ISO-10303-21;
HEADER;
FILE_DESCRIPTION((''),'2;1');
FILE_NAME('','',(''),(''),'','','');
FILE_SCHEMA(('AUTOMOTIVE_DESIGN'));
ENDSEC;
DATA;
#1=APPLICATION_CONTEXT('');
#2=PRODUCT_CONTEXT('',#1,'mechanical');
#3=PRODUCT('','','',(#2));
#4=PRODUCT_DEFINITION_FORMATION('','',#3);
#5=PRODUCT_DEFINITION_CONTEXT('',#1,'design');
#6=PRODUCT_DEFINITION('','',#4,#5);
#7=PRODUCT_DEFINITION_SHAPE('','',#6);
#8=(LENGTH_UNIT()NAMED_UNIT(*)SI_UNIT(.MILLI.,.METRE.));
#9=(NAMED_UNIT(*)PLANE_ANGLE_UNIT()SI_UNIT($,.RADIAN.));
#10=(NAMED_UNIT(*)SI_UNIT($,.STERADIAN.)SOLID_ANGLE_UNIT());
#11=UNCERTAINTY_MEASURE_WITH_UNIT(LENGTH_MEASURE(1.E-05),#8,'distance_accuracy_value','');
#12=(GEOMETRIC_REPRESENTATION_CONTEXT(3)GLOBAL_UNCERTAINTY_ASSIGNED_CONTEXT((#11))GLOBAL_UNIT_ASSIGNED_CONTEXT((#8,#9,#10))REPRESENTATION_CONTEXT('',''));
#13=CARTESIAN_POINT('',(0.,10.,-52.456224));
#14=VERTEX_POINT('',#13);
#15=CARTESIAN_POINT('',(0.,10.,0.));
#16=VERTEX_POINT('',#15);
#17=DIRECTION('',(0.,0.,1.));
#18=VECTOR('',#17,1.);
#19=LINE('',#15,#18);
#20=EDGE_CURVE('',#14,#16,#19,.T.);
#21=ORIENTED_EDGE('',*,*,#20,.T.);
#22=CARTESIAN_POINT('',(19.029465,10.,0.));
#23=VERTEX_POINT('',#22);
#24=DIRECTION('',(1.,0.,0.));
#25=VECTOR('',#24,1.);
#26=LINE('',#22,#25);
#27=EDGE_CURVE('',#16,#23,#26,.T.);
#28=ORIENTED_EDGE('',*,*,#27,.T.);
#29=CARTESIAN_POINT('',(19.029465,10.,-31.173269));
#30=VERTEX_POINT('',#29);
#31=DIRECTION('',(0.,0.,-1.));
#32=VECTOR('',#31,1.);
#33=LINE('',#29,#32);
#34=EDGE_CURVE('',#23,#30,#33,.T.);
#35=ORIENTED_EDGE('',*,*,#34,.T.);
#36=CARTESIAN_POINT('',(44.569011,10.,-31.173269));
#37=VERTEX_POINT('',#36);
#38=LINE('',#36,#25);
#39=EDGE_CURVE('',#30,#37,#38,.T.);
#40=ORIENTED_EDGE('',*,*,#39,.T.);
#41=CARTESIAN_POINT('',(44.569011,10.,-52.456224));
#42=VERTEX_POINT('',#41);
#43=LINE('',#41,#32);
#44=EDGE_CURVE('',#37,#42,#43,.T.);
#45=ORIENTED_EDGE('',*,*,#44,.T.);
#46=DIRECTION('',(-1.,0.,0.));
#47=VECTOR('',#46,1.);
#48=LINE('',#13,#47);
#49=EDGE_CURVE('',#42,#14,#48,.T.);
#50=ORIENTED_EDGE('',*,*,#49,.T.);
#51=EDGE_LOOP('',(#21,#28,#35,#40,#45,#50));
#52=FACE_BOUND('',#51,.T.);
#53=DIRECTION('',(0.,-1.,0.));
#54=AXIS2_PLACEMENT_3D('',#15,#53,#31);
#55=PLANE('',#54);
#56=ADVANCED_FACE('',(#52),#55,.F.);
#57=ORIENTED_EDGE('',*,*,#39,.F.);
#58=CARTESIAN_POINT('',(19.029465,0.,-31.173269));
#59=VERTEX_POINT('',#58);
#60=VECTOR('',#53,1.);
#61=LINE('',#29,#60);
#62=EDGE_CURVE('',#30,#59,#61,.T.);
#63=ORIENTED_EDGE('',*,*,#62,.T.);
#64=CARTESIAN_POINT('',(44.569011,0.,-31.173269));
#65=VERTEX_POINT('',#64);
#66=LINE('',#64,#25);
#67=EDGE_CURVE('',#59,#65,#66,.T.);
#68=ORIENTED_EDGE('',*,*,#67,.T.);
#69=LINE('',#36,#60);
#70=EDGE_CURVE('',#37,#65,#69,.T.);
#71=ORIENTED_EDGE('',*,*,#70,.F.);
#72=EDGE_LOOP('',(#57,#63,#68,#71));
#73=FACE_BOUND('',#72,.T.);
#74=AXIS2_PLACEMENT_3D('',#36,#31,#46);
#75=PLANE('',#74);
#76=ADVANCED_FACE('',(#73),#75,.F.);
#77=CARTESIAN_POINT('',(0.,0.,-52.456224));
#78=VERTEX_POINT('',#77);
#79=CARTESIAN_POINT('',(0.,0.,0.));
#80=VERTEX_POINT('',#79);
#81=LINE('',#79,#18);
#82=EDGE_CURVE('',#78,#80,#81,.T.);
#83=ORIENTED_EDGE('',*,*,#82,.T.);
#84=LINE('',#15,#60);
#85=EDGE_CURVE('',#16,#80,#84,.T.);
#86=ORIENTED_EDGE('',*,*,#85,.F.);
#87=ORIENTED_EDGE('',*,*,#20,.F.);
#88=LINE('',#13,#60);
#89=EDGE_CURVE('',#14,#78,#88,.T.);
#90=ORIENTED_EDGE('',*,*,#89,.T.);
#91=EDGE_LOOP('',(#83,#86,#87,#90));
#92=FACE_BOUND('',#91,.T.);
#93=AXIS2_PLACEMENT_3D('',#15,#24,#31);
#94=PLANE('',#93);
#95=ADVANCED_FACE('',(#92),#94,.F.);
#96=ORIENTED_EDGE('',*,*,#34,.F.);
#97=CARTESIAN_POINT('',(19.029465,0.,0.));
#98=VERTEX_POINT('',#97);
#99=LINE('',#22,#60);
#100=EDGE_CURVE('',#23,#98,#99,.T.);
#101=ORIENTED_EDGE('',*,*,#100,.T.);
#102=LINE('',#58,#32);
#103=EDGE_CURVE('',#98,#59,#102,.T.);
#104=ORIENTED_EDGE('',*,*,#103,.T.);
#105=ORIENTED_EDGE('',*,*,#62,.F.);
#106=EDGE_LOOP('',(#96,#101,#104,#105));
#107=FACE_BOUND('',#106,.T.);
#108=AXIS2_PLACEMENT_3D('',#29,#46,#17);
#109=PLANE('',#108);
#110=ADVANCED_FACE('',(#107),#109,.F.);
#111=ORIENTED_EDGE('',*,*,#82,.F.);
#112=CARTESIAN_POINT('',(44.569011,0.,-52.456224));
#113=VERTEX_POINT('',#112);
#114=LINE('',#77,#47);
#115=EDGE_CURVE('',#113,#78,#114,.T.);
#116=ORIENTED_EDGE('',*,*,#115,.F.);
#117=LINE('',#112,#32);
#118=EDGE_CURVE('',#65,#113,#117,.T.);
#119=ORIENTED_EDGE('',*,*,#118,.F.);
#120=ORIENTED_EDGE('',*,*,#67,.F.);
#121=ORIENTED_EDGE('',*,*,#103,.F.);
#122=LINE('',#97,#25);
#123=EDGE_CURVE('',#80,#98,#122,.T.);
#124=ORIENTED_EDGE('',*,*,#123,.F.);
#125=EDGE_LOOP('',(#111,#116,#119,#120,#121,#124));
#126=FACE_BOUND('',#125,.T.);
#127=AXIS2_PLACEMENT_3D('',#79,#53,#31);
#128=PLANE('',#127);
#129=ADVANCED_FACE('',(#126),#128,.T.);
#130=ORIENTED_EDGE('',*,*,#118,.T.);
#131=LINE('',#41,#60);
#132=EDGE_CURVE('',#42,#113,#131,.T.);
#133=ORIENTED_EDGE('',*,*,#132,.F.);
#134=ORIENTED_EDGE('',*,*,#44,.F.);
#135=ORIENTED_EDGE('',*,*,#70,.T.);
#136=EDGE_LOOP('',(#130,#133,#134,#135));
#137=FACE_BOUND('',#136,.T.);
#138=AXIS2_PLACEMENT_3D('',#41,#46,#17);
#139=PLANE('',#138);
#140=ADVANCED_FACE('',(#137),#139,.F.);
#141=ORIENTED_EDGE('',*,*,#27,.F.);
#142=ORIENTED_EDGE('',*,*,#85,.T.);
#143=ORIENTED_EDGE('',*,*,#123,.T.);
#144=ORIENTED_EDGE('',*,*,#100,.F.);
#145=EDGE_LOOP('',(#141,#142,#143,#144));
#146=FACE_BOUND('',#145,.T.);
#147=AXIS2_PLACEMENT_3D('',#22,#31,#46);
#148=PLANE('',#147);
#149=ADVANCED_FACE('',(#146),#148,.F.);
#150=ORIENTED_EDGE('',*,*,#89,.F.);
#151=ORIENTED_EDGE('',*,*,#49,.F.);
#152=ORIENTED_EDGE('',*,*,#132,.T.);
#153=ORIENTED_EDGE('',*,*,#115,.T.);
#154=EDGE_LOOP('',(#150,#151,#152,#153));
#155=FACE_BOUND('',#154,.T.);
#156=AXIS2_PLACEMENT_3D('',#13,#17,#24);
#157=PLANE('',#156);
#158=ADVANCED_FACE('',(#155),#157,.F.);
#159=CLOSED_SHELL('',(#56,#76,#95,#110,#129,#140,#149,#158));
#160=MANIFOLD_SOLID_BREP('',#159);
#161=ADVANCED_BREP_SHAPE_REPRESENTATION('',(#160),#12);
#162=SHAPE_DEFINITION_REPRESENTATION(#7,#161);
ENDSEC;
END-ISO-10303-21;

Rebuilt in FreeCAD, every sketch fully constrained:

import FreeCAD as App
import Part
import Sketcher

V = App.Vector
Q = App.Units.Quantity


def add_polygon(sketch, points):
    """Adds a closed chain of lines whose ends are joined by coincident constraints."""
    first, n = sketch.GeometryCount, len(points)
    for a, b in zip(points, points[1:] + points[:1]):
        sketch.addGeometry(Part.LineSegment(App.Vector(*a, 0), App.Vector(*b, 0)), False)
    for i in range(n):
        sketch.addConstraint(Sketcher.Constraint("Coincident", first + i, 2, first + (i + 1) % n, 1))

doc = App.newDocument("Part")
params = doc.addObject("Spreadsheet::Sheet", "Params")
for row, (alias, value) in enumerate([
    ("pad1_length", "10 mm"),
], start=1):
    params.set(f"A{row}", alias)
    params.set(f"B{row}", "=" + value)
    params.setAlias(f"B{row}", alias)

body = doc.addObject("PartDesign::Body", "Body")

sketch1 = body.newObject("Sketcher::SketchObject", "Sketch")
sketch1.AttachmentSupport = (doc.getObject("XZ_Plane"), [""])
sketch1.MapMode = "FlatFace"
add_polygon(sketch1, [(0, -52), (0, 0), (19, 0), (19, -31), (45, -31), (45, -52)])
sketch1.addConstraint(Sketcher.Constraint("Vertical", 0))
sketch1.addConstraint(Sketcher.Constraint("Horizontal", 1))
sketch1.addConstraint(Sketcher.Constraint("Vertical", 2))
sketch1.addConstraint(Sketcher.Constraint("Horizontal", 3))
sketch1.addConstraint(Sketcher.Constraint("Vertical", 4))
sketch1.addConstraint(Sketcher.Constraint("Horizontal", 5))
sketch1.addConstraint(Sketcher.Constraint("Coincident", 0, 2, -1, 1))
sketch1.addConstraint(Sketcher.Constraint("DistanceX", 5, 2, 5, 1, Q("44.569011 mm")))
sketch1.addConstraint(Sketcher.Constraint("DistanceY", 2, 2, 2, 1, Q("31.173269 mm")))
sketch1.addConstraint(Sketcher.Constraint("DistanceX", 1, 1, 1, 2, Q("19.029465 mm")))
sketch1.addConstraint(Sketcher.Constraint("DistanceY", 0, 1, 0, 2, Q("52.456224 mm")))
pad1 = body.newObject("PartDesign::Pad", "Pad")
pad1.Profile = sketch1
pad1.setExpression("Length", "Params.pad1_length")
pad1.Reversed = True

doc.recompute()
